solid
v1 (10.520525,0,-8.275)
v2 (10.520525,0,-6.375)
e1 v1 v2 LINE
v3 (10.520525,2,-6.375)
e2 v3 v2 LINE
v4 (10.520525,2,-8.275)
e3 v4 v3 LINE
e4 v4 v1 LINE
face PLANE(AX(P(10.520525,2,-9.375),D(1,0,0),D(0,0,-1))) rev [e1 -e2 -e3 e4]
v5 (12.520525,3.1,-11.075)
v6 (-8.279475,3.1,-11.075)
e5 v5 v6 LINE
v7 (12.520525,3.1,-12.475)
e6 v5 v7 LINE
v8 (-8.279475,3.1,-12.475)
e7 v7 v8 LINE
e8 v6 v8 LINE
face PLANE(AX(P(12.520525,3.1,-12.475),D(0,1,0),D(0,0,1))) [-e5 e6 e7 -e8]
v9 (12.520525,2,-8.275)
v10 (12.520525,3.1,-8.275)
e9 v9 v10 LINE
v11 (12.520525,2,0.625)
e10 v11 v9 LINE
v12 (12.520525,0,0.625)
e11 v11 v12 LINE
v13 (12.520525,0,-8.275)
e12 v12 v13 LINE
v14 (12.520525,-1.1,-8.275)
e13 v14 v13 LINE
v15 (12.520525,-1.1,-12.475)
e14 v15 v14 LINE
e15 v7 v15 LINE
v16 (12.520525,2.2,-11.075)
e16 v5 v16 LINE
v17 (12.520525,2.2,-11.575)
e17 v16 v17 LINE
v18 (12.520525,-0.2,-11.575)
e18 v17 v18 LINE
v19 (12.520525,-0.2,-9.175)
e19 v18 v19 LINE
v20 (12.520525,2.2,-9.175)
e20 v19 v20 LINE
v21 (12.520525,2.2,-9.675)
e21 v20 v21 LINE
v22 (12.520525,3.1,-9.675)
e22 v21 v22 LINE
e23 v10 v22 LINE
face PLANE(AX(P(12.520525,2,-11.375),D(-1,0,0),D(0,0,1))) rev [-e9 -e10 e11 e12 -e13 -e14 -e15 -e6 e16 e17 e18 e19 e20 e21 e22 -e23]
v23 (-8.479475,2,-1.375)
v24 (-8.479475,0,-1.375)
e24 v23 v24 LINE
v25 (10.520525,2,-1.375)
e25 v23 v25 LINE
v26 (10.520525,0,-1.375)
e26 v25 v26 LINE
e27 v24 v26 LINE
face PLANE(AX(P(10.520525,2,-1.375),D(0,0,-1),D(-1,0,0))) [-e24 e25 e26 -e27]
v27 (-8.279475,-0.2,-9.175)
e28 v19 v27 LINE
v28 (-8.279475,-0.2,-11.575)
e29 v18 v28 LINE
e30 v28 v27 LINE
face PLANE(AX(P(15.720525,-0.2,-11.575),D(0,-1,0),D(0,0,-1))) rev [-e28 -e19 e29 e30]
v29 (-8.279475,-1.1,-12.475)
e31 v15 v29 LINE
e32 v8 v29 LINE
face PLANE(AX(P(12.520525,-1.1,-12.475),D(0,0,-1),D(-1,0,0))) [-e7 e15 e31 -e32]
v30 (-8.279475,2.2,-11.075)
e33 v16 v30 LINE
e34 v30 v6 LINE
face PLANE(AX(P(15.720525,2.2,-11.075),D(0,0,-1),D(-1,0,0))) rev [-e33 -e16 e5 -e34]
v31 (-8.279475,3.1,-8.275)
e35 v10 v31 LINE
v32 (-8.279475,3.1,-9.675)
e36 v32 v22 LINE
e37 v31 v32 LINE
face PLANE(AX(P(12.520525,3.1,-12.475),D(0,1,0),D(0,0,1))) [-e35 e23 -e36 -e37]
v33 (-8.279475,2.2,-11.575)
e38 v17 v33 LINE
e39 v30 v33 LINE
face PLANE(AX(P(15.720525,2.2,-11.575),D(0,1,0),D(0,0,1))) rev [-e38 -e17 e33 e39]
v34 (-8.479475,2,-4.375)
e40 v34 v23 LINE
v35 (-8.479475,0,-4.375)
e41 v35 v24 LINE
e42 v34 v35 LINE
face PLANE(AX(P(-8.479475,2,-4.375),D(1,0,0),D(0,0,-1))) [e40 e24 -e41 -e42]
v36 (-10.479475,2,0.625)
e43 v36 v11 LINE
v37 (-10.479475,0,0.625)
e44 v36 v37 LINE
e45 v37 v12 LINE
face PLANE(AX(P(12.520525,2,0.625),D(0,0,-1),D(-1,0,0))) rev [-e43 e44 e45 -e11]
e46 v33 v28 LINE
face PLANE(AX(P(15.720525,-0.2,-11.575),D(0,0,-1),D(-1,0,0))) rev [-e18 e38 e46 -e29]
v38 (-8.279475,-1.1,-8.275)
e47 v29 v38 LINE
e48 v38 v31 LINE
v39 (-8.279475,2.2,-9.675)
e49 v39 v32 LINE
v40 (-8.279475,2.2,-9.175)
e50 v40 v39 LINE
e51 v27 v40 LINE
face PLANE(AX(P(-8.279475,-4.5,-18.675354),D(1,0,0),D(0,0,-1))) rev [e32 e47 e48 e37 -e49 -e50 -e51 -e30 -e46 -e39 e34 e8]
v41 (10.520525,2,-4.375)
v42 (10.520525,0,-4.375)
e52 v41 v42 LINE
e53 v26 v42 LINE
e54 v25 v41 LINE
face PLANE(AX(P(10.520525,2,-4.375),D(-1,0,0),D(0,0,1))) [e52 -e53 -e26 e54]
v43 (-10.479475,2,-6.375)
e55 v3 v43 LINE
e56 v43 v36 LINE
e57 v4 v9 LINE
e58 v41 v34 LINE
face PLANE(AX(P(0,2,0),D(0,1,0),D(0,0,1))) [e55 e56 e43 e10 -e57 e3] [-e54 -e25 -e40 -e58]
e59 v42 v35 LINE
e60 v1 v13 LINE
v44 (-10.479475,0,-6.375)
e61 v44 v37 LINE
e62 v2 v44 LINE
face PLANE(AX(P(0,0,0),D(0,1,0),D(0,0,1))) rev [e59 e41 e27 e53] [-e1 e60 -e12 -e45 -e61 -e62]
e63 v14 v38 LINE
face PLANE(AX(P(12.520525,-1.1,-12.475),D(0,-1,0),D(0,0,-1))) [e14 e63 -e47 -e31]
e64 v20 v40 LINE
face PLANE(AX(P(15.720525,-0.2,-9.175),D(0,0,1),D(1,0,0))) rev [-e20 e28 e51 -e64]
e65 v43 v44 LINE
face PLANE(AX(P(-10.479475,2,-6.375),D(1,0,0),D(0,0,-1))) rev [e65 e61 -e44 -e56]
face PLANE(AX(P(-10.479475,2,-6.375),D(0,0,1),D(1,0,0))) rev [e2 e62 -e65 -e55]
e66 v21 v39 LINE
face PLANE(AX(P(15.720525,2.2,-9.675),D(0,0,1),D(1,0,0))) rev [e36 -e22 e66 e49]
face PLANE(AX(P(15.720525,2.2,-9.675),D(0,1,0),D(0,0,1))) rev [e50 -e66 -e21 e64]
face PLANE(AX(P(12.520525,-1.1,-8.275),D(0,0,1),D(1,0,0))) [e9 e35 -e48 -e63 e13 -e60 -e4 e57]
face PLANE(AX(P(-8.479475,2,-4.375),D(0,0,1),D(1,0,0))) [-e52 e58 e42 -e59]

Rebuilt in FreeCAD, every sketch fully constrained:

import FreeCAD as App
import Part
import Sketcher
Q = App.Units.Quantity


def add_polygon(sketch, points):
    """Adds a closed chain of lines whose ends are joined by coincident constraints."""
    first, n = sketch.GeometryCount, len(points)
    for a, b in zip(points, points[1:] + points[:1]):
        sketch.addGeometry(Part.LineSegment(App.Vector(*a, 0), App.Vector(*b, 0)), False)
    for i in range(n):
        sketch.addConstraint(Sketcher.Constraint("Coincident", first + i, 2, first + (i + 1) % n, 1))

doc = App.newDocument("Part")
body = doc.addObject("PartDesign::Body", "Body")

# Sketch on XZ plane
sketch1 = body.newObject("Sketcher::SketchObject", "Sketch")
sketch1.AttachmentSupport = (doc.getObject("XZ_Plane"), [""])
sketch1.MapMode = "FlatFace"
add_polygon(sketch1, [(12.5, -11.4), (-10.5, -11.4), (-10.5, -9.4), (10.5, -9.4), (10.5, -6.4), (-10.5, -6.4), (-10.5, 0.6), (12.5, 0.6)])  # lines 0-7
add_polygon(sketch1, [(-8.5, -1.4), (-8.5, -4.4), (10.5, -4.4), (10.5, -1.4)])  # lines 8-11
sketch1.addConstraint([
    Sketcher.Constraint("Horizontal", 0),
    Sketcher.Constraint("Vertical", 1),
    Sketcher.Constraint("Horizontal", 2),
    Sketcher.Constraint("Vertical", 3),
    Sketcher.Constraint("Horizontal", 4),
    Sketcher.Constraint("Vertical", 5),
    Sketcher.Constraint("Horizontal", 6),
    Sketcher.Constraint("Vertical", 7),
    Sketcher.Constraint("Vertical", 8),
    Sketcher.Constraint("Horizontal", 9),
    Sketcher.Constraint("Vertical", 10),
    Sketcher.Constraint("Horizontal", 11),
    Sketcher.Constraint("Vertical", 1, 2, 4, 2),
    Sketcher.Constraint("Vertical", 3, 2, 9, 2),
    Sketcher.Constraint("Equal", 3, 8),
    Sketcher.Constraint("DistanceX", 0, 2, 0, 1, Q("23 mm")),
    Sketcher.Constraint("DistanceX", 2, 1, 2, 2, Q("21 mm")),
    Sketcher.Constraint("DistanceX", 9, 1, 9, 2, Q("19 mm")),
    Sketcher.Constraint("DistanceY", 1, 1, 1, 2, Q("2 mm")),
    Sketcher.Constraint("DistanceY", 3, 1, 3, 2, Q("3 mm")),
    Sketcher.Constraint("DistanceY", 5, 1, 5, 2, Q("7 mm")),
    Sketcher.Constraint("DistanceY", 4, 2, 8, 2, Q("2 mm")),
    Sketcher.Constraint("DistanceY", 0, 2, -1, 1, Q("11.375 mm")),
    Sketcher.Constraint("DistanceX", 0, 2, -1, 1, Q("10.479475 mm")),
])
pad1 = body.newObject("PartDesign::Pad", "Pad")
pad1.Profile = sketch1
pad1.Length = 2
pad1.Reversed = True

# Sketch on XZ plane
sketch2 = body.newObject("Sketcher::SketchObject", "Sketch001")
sketch2.AttachmentSupport = (doc.getObject("XZ_Plane"), [""])
sketch2.MapMode = "FlatFace"
add_polygon(sketch2, [(-10.8, -12), (-10.8, -8.5), (-8.5, -8.5), (-8.5, -12)])  # lines 0-3
sketch2.addConstraint([
    Sketcher.Constraint("Vertical", 0),
    Sketcher.Constraint("Horizontal", 1),
    Sketcher.Constraint("Vertical", 2),
    Sketcher.Constraint("Horizontal", 3),
    Sketcher.Constraint("DistanceX", 1, 1, 1, 2, Q("2.338389 mm")),
    Sketcher.Constraint("DistanceY", 0, 1, 0, 2, Q("3.565642 mm")),
    Sketcher.Constraint("DistanceY", 2, 2, -1, 1, Q("12.043939 mm")),
    Sketcher.Constraint("DistanceX", 0, 2, -1, 1, Q("10.817864 mm")),
])
pocket1 = body.newObject("PartDesign::Pocket", "Pocket")
pocket1.Profile = sketch2
pocket1.Length = 3

# Sketch on YZ plane
sketch3 = body.newObject("Sketcher::SketchObject", "Sketch002")
sketch3.AttachmentSupport = (doc.getObject("YZ_Plane"), [""])
sketch3.MapMode = "FlatFace"
sketch3.AttachmentOffset = App.Placement(App.Vector(0, 0, -8.479475), App.Rotation())
add_polygon(sketch3, [(3.1, -12.5), (-1.1, -12.5), (-1.1, -8.3), (3.1, -8.3)])  # lines 0-3
add_polygon(sketch3, [(-0.1, -9.3), (-0.1, -11.5), (2.1, -11.5), (2.1, -9.3)])  # lines 4-7
sketch3.addConstraint([
    Sketcher.Constraint("Horizontal", 0),
    Sketcher.Constraint("Vertical", 1),
    Sketcher.Constraint("Horizontal", 2),
    Sketcher.Constraint("Vertical", 3),
    Sketcher.Constraint("Vertical", 4),
    Sketcher.Constraint("Horizontal", 5),
    Sketcher.Constraint("Vertical", 6),
    Sketcher.Constraint("Horizontal", 7),
    Sketcher.Constraint("Equal", 2, 1),
    Sketcher.Constraint("Equal", 7, 4),
    Sketcher.Constraint("DistanceX", 0, 2, 0, 1, Q("4.2 mm")),
    Sketcher.Constraint("DistanceX", 5, 1, 5, 2, Q("2.2 mm")),
    Sketcher.Constraint("DistanceX", 0, 2, 4, 2, Q("1 mm")),
    Sketcher.Constraint("DistanceY", 0, 2, 4, 2, Q("1 mm")),
    Sketcher.Constraint("DistanceX", 0, 2, -1, 1, Q("1.1 mm")),
    Sketcher.Constraint("DistanceY", 0, 2, -1, 1, Q("12.475 mm")),
])
pad2 = body.newObject("PartDesign::Pad", "Pad001")
pad2.Profile = sketch3
pad2.Length = 21

# Sketch on YZ plane
sketch4 = body.newObject("Sketcher::SketchObject", "Sketch003")
sketch4.AttachmentSupport = (doc.getObject("YZ_Plane"), [""])
sketch4.MapMode = "FlatFace"
sketch4.AttachmentOffset = App.Placement(App.Vector(0, 0, -8.479475), App.Rotation())
add_polygon(sketch4, [(2, -11.4), (0, -11.4), (0, -9.4), (2, -9.4)])  # lines 0-3
sketch4.addConstraint([
    Sketcher.Constraint("Horizontal", 0),
    Sketcher.Constraint("Vertical", 1),
    Sketcher.Constraint("Horizontal", 2),
    Sketcher.Constraint("Vertical", 3),
    Sketcher.Constraint("PointOnObject", 0, 2, -2),
    Sketcher.Constraint("Equal", 2, 1),
    Sketcher.Constraint("DistanceX", 0, 2, 0, 1, Q("2 mm")),
    Sketcher.Constraint("DistanceY", 0, 2, -1, 1, Q("11.375 mm")),
])
pocket2 = body.newObject("PartDesign::Pocket", "Pocket001")
pocket2.Profile = sketch4
pocket2.Length = 29
pocket2.Reversed = True

# Sketch on XZ plane
sketch5 = body.newObject("Sketcher::SketchObject", "Sketch004")
sketch5.AttachmentSupport = (doc.getObject("XZ_Plane"), [""])
sketch5.MapMode = "FlatFace"
add_polygon(sketch5, [(-19, -19), (-19, -8), (-8, -8), (-8, -19)])  # lines 0-3
sketch5.addConstraint([
    Sketcher.Constraint("Vertical", 0),
    Sketcher.Constraint("Horizontal", 1),
    Sketcher.Constraint("Vertical", 2),
    Sketcher.Constraint("Horizontal", 3),
    Sketcher.Constraint("DistanceX", 1, 1, 1, 2, Q("10.736294 mm")),
    Sketcher.Constraint("DistanceY", 0, 1, 0, 2, Q("11.045995 mm")),
    Sketcher.Constraint("DistanceX", 0, 2, -1, 1, Q("19.015769 mm")),
    Sketcher.Constraint("DistanceY", 0, 2, -1, 1, Q("7.629359 mm")),
])
pocket3 = body.newObject("PartDesign::Pocket", "Pocket002")
pocket3.Profile = sketch5
pocket3.Length = 9
pocket3.Midplane = True

# Sketch on YZ plane
sketch6 = body.newObject("Sketcher::SketchObject", "Sketch005")
sketch6.AttachmentSupport = (doc.getObject("YZ_Plane"), [""])
sketch6.MapMode = "FlatFace"
sketch6.AttachmentOffset = App.Placement(App.Vector(0, 0, -8.279475), App.Rotation())
add_polygon(sketch6, [(3.4, -11.1), (2.2, -11.1), (2.2, -11.6), (-0.2, -11.6), (-0.2, -9.2), (2.2, -9.2), (2.2, -9.7), (3.4, -9.7)])  # lines 0-7
sketch6.addConstraint([
    Sketcher.Constraint("Horizontal", 0),
    Sketcher.Constraint("Vertical", 1),
    Sketcher.Constraint("Horizontal", 2),
    Sketcher.Constraint("Vertical", 3),
    Sketcher.Constraint("Horizontal", 4),
    Sketcher.Constraint("Vertical", 5),
    Sketcher.Constraint("Horizontal", 6),
    Sketcher.Constraint("Vertical", 7),
    Sketcher.Constraint("Vertical", 1, 2, 4, 2),
    Sketcher.Constraint("Equal", 4, 3),
    Sketcher.Constraint("Equal", 1, 5),
    Sketcher.Constraint("DistanceX", 2, 2, 2, 1, Q("2.4 mm")),
    Sketcher.Constraint("DistanceY", 1, 2, 1, 1, Q("0.5 mm")),
    Sketcher.Constraint("DistanceX", -1, 1, 0, 2, Q("2.2 mm")),
    Sketcher.Constraint("DistanceY", 0, 2, -1, 1, Q("11.075 mm")),
    Sketcher.Constraint("DistanceX", 0, 2, 0, 1, Q("1.170048 mm")),
])
pocket4 = body.newObject("PartDesign::Pocket", "Pocket003")
pocket4.Profile = sketch6
pocket4.Length = 24
pocket4.Reversed = True

doc.recompute()
